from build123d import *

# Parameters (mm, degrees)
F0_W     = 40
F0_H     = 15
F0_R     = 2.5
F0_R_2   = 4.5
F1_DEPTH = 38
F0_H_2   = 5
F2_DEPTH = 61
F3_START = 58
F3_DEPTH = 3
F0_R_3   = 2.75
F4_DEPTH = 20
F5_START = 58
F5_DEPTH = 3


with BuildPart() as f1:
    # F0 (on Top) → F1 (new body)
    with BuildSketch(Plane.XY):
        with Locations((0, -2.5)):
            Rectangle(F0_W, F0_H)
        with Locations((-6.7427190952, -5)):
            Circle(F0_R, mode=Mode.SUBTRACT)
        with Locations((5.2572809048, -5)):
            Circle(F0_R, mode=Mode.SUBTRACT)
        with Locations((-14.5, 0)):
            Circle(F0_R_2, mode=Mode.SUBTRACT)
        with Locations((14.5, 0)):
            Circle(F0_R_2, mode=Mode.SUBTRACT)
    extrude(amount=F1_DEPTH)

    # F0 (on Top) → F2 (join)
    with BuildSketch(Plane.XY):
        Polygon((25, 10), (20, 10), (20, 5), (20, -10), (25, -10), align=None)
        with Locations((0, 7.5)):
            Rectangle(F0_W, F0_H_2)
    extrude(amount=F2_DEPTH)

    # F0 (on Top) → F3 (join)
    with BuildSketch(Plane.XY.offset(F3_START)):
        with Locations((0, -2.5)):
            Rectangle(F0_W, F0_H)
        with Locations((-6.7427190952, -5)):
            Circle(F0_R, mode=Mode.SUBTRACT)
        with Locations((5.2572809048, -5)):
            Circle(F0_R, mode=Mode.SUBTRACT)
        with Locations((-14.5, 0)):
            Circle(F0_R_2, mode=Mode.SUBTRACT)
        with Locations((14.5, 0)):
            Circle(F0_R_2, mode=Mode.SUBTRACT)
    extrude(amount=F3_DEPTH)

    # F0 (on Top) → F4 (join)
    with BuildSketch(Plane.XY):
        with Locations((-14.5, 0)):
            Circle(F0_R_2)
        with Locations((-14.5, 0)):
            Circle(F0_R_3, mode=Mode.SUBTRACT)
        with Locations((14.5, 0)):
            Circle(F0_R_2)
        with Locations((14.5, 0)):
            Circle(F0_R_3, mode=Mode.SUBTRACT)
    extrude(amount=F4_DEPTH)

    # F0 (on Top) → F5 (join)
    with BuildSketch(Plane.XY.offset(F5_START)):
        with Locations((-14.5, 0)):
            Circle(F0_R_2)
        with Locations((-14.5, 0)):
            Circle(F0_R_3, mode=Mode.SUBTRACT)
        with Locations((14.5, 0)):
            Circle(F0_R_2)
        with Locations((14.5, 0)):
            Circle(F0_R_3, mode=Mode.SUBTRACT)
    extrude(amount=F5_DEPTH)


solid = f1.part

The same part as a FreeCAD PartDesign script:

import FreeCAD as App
import Part
import Sketcher

doc = App.newDocument("Part")
body = doc.addObject("PartDesign::Body", "Body")

# Sketch on XY plane
sketch1 = body.newObject("Sketcher::SketchObject", "Sketch")
sketch1.AttachmentSupport = (doc.getObject("XY_Plane"), [""])
sketch1.MapMode = "FlatFace"
sketch1.addGeometry([
    Part.LineSegment(App.Vector(-20, 5, 0), App.Vector(-20, -10, 0)),  # 0
    Part.LineSegment(App.Vector(-20, -10, 0), App.Vector(20, -10, 0)),  # 1
    Part.LineSegment(App.Vector(20, -10, 0), App.Vector(20, 5, 0)),  # 2
    Part.LineSegment(App.Vector(20, 5, 0), App.Vector(-20, 5, 0)),  # 3
    Part.Circle(App.Vector(-6.7, -5, 0), App.Vector(0, 0, 1), 2.5),  # 4
    Part.Circle(App.Vector(5.3, -5, 0), App.Vector(0, 0, 1), 2.5),  # 5
    Part.Circle(App.Vector(-14.5, 0, 0), App.Vector(0, 0, 1), 4.5),  # 6
    Part.Circle(App.Vector(14.5, 0, 0), App.Vector(0, 0, 1), 4.5),  # 7
], False)
sketch1.addConstraint([
    Sketcher.Constraint("Coincident", 0, 2, 1, 1),
    Sketcher.Constraint("Coincident", 1, 2, 2, 1),
    Sketcher.Constraint("Coincident", 2, 2, 3, 1),
    Sketcher.Constraint("Coincident", 3, 2, 0, 1),
    Sketcher.Constraint("Vertical", 0),
    Sketcher.Constraint("Horizontal", 1),
    Sketcher.Constraint("Vertical", 2),
    Sketcher.Constraint("Horizontal", 3),
    Sketcher.Constraint("Equal", 4, 5),
    Sketcher.Constraint("Equal", 6, 7),
    Sketcher.Constraint("Symmetric", 6, 3, 7, 3, -1, 1),
    Sketcher.Constraint("PointOnObject", 6, 3, -1),
    Sketcher.Constraint("Horizontal", 4, 3, 5, 3),
    Sketcher.Constraint("Diameter", 4, 5.0),
    Sketcher.Constraint("Diameter", 6, 9.0),
    Sketcher.Constraint("DistanceX", 1, 1, 1, 2, 40.0),
    Sketcher.Constraint("DistanceY", 0, 2, 0, 1, 15.0),
    Sketcher.Constraint("DistanceY", 4, 3, -1, 1, 5.0),
    Sketcher.Constraint("DistanceX", 0, 2, -1, 1, 20.0),
    Sketcher.Constraint("DistanceY", 0, 2, -1, 1, 10.0),
    Sketcher.Constraint("DistanceX", 4, 3, 5, 3, 12.0),
    Sketcher.Constraint("DistanceX", 6, 3, 7, 3, 29.0),
    Sketcher.Constraint("DistanceX", 4, 3, -1, 1, 6.742719),
])
pad1 = body.newObject("PartDesign::Pad", "Pad")
pad1.Profile = sketch1
pad1.Length = 38

# Sketch on XY plane
sketch2 = body.newObject("Sketcher::SketchObject", "Sketch001")
sketch2.AttachmentSupport = (doc.getObject("XY_Plane"), [""])
sketch2.MapMode = "FlatFace"
sketch2.addGeometry([
    Part.LineSegment(App.Vector(25, 10, 0), App.Vector(-20, 10, 0)),  # 0
    Part.LineSegment(App.Vector(-20, 10, 0), App.Vector(-20, 5, 0)),  # 1
    Part.LineSegment(App.Vector(-20, 5, 0), App.Vector(20, 5, 0)),  # 2
    Part.LineSegment(App.Vector(20, 5, 0), App.Vector(20, -10, 0)),  # 3
    Part.LineSegment(App.Vector(20, -10, 0), App.Vector(25, -10, 0)),  # 4
    Part.LineSegment(App.Vector(25, -10, 0), App.Vector(25, 10, 0)),  # 5
], False)
sketch2.addConstraint([
    Sketcher.Constraint("Coincident", 0, 2, 1, 1),
    Sketcher.Constraint("Coincident", 1, 2, 2, 1),
    Sketcher.Constraint("Coincident", 2, 2, 3, 1),
    Sketcher.Constraint("Coincident", 3, 2, 4, 1),
    Sketcher.Constraint("Coincident", 4, 2, 5, 1),
    Sketcher.Constraint("Coincident", 5, 2, 0, 1),
    Sketcher.Constraint("Horizontal", 0),
    Sketcher.Constraint("Vertical", 1),
    Sketcher.Constraint("Horizontal", 2),
    Sketcher.Constraint("Vertical", 3),
    Sketcher.Constraint("Horizontal", 4),
    Sketcher.Constraint("Vertical", 5),
    Sketcher.Constraint("Symmetric", 0, 2, 3, 2, -1, 1),
    Sketcher.Constraint("Equal", 4, 1),
    Sketcher.Constraint("DistanceX", 0, 2, 0, 1, 45.0),
    Sketcher.Constraint("DistanceX", 2, 1, 2, 2, 40.0),
    Sketcher.Constraint("DistanceY", 3, 2, 3, 1, 15.0),
])
pad2 = body.newObject("PartDesign::Pad", "Pad001")
pad2.Profile = sketch2
pad2.Length = 61

# Sketch on XY plane
sketch3 = body.newObject("Sketcher::SketchObject", "Sketch002")
sketch3.AttachmentSupport = (doc.getObject("XY_Plane"), [""])
sketch3.MapMode = "FlatFace"
sketch3.AttachmentOffset = App.Placement(App.Vector(0, 0, 58), App.Rotation())
sketch3.addGeometry([
    Part.LineSegment(App.Vector(-20, 5, 0), App.Vector(-20, -10, 0)),  # 0
    Part.LineSegment(App.Vector(-20, -10, 0), App.Vector(20, -10, 0)),  # 1
    Part.LineSegment(App.Vector(20, -10, 0), App.Vector(20, 5, 0)),  # 2
    Part.LineSegment(App.Vector(20, 5, 0), App.Vector(-20, 5, 0)),  # 3
    Part.Circle(App.Vector(-6.7, -5, 0), App.Vector(0, 0, 1), 2.5),  # 4
    Part.Circle(App.Vector(5.3, -5, 0), App.Vector(0, 0, 1), 2.5),  # 5
    Part.Circle(App.Vector(-14.5, 0, 0), App.Vector(0, 0, 1), 4.5),  # 6
    Part.Circle(App.Vector(14.5, 0, 0), App.Vector(0, 0, 1), 4.5),  # 7
], False)
sketch3.addConstraint([
    Sketcher.Constraint("Coincident", 0, 2, 1, 1),
    Sketcher.Constraint("Coincident", 1, 2, 2, 1),
    Sketcher.Constraint("Coincident", 2, 2, 3, 1),
    Sketcher.Constraint("Coincident", 3, 2, 0, 1),
    Sketcher.Constraint("Vertical", 0),
    Sketcher.Constraint("Horizontal", 1),
    Sketcher.Constraint("Vertical", 2),
    Sketcher.Constraint("Horizontal", 3),
    Sketcher.Constraint("Equal", 4, 5),
    Sketcher.Constraint("Equal", 6, 7),
    Sketcher.Constraint("Symmetric", 6, 3, 7, 3, -1, 1),
    Sketcher.Constraint("PointOnObject", 6, 3, -1),
    Sketcher.Constraint("Horizontal", 4, 3, 5, 3),
    Sketcher.Constraint("Diameter", 4, 5.0),
    Sketcher.Constraint("Diameter", 6, 9.0),
    Sketcher.Constraint("DistanceX", 1, 1, 1, 2, 40.0),
    Sketcher.Constraint("DistanceY", 0, 2, 0, 1, 15.0),
    Sketcher.Constraint("DistanceY", 4, 3, -1, 1, 5.0),
    Sketcher.Constraint("DistanceX", 0, 2, -1, 1, 20.0),
    Sketcher.Constraint("DistanceY", 0, 2, -1, 1, 10.0),
    Sketcher.Constraint("DistanceX", 4, 3, 5, 3, 12.0),
    Sketcher.Constraint("DistanceX", 6, 3, 7, 3, 29.0),
    Sketcher.Constraint("DistanceX", 4, 3, -1, 1, 6.742719),
])
pad3 = body.newObject("PartDesign::Pad", "Pad002")
pad3.Profile = sketch3
pad3.Length = 3

# Sketch on XY plane
sketch4 = body.newObject("Sketcher::SketchObject", "Sketch003")
sketch4.AttachmentSupport = (doc.getObject("XY_Plane"), [""])
sketch4.MapMode = "FlatFace"
sketch4.addGeometry([
    Part.Circle(App.Vector(-14.5, 0, 0), App.Vector(0, 0, 1), 4.5),
    Part.Circle(App.Vector(-14.5, 0, 0), App.Vector(0, 0, 1), 2.8),
    Part.Circle(App.Vector(14.5, 0, 0), App.Vector(0, 0, 1), 4.5),
    Part.Circle(App.Vector(14.5, 0, 0), App.Vector(0, 0, 1), 2.8),
], False)
sketch4.addConstraint([
    Sketcher.Constraint("Coincident", 1, 3, 0, 3),
    Sketcher.Constraint("Coincident", 3, 3, 2, 3),
    Sketcher.Constraint("Equal", 0, 2),
    Sketcher.Constraint("Equal", 1, 3),
    Sketcher.Constraint("Symmetric", 0, 3, 2, 3, -1, 1),
    Sketcher.Constraint("PointOnObject", 0, 3, -1),
    Sketcher.Constraint("Diameter", 0, 9.0),
    Sketcher.Constraint("Diameter", 1, 5.5),
    Sketcher.Constraint("DistanceX", 0, 3, 2, 3, 29.0),
])
pad4 = body.newObject("PartDesign::Pad", "Pad003")
pad4.Profile = sketch4
pad4.Length = 20

# Sketch on XY plane
sketch5 = body.newObject("Sketcher::SketchObject", "Sketch004")
sketch5.AttachmentSupport = (doc.getObject("XY_Plane"), [""])
sketch5.MapMode = "FlatFace"
sketch5.AttachmentOffset = App.Placement(App.Vector(0, 0, 58), App.Rotation())
sketch5.addGeometry([
    Part.Circle(App.Vector(-14.5, 0, 0), App.Vector(0, 0, 1), 4.5),
    Part.Circle(App.Vector(-14.5, 0, 0), App.Vector(0, 0, 1), 2.8),
    Part.Circle(App.Vector(14.5, 0, 0), App.Vector(0, 0, 1), 4.5),
    Part.Circle(App.Vector(14.5, 0, 0), App.Vector(0, 0, 1), 2.8),
], False)
sketch5.addConstraint([
    Sketcher.Constraint("Coincident", 1, 3, 0, 3),
    Sketcher.Constraint("Coincident", 3, 3, 2, 3),
    Sketcher.Constraint("Equal", 0, 2),
    Sketcher.Constraint("Equal", 1, 3),
    Sketcher.Constraint("Symmetric", 0, 3, 2, 3, -1, 1),
    Sketcher.Constraint("PointOnObject", 0, 3, -1),
    Sketcher.Constraint("Diameter", 0, 9.0),
    Sketcher.Constraint("Diameter", 1, 5.5),
    Sketcher.Constraint("DistanceX", 0, 3, 2, 3, 29.0),
])
pad5 = body.newObject("PartDesign::Pad", "Pad004")
pad5.Profile = sketch5
pad5.Length = 3

doc.recompute()
